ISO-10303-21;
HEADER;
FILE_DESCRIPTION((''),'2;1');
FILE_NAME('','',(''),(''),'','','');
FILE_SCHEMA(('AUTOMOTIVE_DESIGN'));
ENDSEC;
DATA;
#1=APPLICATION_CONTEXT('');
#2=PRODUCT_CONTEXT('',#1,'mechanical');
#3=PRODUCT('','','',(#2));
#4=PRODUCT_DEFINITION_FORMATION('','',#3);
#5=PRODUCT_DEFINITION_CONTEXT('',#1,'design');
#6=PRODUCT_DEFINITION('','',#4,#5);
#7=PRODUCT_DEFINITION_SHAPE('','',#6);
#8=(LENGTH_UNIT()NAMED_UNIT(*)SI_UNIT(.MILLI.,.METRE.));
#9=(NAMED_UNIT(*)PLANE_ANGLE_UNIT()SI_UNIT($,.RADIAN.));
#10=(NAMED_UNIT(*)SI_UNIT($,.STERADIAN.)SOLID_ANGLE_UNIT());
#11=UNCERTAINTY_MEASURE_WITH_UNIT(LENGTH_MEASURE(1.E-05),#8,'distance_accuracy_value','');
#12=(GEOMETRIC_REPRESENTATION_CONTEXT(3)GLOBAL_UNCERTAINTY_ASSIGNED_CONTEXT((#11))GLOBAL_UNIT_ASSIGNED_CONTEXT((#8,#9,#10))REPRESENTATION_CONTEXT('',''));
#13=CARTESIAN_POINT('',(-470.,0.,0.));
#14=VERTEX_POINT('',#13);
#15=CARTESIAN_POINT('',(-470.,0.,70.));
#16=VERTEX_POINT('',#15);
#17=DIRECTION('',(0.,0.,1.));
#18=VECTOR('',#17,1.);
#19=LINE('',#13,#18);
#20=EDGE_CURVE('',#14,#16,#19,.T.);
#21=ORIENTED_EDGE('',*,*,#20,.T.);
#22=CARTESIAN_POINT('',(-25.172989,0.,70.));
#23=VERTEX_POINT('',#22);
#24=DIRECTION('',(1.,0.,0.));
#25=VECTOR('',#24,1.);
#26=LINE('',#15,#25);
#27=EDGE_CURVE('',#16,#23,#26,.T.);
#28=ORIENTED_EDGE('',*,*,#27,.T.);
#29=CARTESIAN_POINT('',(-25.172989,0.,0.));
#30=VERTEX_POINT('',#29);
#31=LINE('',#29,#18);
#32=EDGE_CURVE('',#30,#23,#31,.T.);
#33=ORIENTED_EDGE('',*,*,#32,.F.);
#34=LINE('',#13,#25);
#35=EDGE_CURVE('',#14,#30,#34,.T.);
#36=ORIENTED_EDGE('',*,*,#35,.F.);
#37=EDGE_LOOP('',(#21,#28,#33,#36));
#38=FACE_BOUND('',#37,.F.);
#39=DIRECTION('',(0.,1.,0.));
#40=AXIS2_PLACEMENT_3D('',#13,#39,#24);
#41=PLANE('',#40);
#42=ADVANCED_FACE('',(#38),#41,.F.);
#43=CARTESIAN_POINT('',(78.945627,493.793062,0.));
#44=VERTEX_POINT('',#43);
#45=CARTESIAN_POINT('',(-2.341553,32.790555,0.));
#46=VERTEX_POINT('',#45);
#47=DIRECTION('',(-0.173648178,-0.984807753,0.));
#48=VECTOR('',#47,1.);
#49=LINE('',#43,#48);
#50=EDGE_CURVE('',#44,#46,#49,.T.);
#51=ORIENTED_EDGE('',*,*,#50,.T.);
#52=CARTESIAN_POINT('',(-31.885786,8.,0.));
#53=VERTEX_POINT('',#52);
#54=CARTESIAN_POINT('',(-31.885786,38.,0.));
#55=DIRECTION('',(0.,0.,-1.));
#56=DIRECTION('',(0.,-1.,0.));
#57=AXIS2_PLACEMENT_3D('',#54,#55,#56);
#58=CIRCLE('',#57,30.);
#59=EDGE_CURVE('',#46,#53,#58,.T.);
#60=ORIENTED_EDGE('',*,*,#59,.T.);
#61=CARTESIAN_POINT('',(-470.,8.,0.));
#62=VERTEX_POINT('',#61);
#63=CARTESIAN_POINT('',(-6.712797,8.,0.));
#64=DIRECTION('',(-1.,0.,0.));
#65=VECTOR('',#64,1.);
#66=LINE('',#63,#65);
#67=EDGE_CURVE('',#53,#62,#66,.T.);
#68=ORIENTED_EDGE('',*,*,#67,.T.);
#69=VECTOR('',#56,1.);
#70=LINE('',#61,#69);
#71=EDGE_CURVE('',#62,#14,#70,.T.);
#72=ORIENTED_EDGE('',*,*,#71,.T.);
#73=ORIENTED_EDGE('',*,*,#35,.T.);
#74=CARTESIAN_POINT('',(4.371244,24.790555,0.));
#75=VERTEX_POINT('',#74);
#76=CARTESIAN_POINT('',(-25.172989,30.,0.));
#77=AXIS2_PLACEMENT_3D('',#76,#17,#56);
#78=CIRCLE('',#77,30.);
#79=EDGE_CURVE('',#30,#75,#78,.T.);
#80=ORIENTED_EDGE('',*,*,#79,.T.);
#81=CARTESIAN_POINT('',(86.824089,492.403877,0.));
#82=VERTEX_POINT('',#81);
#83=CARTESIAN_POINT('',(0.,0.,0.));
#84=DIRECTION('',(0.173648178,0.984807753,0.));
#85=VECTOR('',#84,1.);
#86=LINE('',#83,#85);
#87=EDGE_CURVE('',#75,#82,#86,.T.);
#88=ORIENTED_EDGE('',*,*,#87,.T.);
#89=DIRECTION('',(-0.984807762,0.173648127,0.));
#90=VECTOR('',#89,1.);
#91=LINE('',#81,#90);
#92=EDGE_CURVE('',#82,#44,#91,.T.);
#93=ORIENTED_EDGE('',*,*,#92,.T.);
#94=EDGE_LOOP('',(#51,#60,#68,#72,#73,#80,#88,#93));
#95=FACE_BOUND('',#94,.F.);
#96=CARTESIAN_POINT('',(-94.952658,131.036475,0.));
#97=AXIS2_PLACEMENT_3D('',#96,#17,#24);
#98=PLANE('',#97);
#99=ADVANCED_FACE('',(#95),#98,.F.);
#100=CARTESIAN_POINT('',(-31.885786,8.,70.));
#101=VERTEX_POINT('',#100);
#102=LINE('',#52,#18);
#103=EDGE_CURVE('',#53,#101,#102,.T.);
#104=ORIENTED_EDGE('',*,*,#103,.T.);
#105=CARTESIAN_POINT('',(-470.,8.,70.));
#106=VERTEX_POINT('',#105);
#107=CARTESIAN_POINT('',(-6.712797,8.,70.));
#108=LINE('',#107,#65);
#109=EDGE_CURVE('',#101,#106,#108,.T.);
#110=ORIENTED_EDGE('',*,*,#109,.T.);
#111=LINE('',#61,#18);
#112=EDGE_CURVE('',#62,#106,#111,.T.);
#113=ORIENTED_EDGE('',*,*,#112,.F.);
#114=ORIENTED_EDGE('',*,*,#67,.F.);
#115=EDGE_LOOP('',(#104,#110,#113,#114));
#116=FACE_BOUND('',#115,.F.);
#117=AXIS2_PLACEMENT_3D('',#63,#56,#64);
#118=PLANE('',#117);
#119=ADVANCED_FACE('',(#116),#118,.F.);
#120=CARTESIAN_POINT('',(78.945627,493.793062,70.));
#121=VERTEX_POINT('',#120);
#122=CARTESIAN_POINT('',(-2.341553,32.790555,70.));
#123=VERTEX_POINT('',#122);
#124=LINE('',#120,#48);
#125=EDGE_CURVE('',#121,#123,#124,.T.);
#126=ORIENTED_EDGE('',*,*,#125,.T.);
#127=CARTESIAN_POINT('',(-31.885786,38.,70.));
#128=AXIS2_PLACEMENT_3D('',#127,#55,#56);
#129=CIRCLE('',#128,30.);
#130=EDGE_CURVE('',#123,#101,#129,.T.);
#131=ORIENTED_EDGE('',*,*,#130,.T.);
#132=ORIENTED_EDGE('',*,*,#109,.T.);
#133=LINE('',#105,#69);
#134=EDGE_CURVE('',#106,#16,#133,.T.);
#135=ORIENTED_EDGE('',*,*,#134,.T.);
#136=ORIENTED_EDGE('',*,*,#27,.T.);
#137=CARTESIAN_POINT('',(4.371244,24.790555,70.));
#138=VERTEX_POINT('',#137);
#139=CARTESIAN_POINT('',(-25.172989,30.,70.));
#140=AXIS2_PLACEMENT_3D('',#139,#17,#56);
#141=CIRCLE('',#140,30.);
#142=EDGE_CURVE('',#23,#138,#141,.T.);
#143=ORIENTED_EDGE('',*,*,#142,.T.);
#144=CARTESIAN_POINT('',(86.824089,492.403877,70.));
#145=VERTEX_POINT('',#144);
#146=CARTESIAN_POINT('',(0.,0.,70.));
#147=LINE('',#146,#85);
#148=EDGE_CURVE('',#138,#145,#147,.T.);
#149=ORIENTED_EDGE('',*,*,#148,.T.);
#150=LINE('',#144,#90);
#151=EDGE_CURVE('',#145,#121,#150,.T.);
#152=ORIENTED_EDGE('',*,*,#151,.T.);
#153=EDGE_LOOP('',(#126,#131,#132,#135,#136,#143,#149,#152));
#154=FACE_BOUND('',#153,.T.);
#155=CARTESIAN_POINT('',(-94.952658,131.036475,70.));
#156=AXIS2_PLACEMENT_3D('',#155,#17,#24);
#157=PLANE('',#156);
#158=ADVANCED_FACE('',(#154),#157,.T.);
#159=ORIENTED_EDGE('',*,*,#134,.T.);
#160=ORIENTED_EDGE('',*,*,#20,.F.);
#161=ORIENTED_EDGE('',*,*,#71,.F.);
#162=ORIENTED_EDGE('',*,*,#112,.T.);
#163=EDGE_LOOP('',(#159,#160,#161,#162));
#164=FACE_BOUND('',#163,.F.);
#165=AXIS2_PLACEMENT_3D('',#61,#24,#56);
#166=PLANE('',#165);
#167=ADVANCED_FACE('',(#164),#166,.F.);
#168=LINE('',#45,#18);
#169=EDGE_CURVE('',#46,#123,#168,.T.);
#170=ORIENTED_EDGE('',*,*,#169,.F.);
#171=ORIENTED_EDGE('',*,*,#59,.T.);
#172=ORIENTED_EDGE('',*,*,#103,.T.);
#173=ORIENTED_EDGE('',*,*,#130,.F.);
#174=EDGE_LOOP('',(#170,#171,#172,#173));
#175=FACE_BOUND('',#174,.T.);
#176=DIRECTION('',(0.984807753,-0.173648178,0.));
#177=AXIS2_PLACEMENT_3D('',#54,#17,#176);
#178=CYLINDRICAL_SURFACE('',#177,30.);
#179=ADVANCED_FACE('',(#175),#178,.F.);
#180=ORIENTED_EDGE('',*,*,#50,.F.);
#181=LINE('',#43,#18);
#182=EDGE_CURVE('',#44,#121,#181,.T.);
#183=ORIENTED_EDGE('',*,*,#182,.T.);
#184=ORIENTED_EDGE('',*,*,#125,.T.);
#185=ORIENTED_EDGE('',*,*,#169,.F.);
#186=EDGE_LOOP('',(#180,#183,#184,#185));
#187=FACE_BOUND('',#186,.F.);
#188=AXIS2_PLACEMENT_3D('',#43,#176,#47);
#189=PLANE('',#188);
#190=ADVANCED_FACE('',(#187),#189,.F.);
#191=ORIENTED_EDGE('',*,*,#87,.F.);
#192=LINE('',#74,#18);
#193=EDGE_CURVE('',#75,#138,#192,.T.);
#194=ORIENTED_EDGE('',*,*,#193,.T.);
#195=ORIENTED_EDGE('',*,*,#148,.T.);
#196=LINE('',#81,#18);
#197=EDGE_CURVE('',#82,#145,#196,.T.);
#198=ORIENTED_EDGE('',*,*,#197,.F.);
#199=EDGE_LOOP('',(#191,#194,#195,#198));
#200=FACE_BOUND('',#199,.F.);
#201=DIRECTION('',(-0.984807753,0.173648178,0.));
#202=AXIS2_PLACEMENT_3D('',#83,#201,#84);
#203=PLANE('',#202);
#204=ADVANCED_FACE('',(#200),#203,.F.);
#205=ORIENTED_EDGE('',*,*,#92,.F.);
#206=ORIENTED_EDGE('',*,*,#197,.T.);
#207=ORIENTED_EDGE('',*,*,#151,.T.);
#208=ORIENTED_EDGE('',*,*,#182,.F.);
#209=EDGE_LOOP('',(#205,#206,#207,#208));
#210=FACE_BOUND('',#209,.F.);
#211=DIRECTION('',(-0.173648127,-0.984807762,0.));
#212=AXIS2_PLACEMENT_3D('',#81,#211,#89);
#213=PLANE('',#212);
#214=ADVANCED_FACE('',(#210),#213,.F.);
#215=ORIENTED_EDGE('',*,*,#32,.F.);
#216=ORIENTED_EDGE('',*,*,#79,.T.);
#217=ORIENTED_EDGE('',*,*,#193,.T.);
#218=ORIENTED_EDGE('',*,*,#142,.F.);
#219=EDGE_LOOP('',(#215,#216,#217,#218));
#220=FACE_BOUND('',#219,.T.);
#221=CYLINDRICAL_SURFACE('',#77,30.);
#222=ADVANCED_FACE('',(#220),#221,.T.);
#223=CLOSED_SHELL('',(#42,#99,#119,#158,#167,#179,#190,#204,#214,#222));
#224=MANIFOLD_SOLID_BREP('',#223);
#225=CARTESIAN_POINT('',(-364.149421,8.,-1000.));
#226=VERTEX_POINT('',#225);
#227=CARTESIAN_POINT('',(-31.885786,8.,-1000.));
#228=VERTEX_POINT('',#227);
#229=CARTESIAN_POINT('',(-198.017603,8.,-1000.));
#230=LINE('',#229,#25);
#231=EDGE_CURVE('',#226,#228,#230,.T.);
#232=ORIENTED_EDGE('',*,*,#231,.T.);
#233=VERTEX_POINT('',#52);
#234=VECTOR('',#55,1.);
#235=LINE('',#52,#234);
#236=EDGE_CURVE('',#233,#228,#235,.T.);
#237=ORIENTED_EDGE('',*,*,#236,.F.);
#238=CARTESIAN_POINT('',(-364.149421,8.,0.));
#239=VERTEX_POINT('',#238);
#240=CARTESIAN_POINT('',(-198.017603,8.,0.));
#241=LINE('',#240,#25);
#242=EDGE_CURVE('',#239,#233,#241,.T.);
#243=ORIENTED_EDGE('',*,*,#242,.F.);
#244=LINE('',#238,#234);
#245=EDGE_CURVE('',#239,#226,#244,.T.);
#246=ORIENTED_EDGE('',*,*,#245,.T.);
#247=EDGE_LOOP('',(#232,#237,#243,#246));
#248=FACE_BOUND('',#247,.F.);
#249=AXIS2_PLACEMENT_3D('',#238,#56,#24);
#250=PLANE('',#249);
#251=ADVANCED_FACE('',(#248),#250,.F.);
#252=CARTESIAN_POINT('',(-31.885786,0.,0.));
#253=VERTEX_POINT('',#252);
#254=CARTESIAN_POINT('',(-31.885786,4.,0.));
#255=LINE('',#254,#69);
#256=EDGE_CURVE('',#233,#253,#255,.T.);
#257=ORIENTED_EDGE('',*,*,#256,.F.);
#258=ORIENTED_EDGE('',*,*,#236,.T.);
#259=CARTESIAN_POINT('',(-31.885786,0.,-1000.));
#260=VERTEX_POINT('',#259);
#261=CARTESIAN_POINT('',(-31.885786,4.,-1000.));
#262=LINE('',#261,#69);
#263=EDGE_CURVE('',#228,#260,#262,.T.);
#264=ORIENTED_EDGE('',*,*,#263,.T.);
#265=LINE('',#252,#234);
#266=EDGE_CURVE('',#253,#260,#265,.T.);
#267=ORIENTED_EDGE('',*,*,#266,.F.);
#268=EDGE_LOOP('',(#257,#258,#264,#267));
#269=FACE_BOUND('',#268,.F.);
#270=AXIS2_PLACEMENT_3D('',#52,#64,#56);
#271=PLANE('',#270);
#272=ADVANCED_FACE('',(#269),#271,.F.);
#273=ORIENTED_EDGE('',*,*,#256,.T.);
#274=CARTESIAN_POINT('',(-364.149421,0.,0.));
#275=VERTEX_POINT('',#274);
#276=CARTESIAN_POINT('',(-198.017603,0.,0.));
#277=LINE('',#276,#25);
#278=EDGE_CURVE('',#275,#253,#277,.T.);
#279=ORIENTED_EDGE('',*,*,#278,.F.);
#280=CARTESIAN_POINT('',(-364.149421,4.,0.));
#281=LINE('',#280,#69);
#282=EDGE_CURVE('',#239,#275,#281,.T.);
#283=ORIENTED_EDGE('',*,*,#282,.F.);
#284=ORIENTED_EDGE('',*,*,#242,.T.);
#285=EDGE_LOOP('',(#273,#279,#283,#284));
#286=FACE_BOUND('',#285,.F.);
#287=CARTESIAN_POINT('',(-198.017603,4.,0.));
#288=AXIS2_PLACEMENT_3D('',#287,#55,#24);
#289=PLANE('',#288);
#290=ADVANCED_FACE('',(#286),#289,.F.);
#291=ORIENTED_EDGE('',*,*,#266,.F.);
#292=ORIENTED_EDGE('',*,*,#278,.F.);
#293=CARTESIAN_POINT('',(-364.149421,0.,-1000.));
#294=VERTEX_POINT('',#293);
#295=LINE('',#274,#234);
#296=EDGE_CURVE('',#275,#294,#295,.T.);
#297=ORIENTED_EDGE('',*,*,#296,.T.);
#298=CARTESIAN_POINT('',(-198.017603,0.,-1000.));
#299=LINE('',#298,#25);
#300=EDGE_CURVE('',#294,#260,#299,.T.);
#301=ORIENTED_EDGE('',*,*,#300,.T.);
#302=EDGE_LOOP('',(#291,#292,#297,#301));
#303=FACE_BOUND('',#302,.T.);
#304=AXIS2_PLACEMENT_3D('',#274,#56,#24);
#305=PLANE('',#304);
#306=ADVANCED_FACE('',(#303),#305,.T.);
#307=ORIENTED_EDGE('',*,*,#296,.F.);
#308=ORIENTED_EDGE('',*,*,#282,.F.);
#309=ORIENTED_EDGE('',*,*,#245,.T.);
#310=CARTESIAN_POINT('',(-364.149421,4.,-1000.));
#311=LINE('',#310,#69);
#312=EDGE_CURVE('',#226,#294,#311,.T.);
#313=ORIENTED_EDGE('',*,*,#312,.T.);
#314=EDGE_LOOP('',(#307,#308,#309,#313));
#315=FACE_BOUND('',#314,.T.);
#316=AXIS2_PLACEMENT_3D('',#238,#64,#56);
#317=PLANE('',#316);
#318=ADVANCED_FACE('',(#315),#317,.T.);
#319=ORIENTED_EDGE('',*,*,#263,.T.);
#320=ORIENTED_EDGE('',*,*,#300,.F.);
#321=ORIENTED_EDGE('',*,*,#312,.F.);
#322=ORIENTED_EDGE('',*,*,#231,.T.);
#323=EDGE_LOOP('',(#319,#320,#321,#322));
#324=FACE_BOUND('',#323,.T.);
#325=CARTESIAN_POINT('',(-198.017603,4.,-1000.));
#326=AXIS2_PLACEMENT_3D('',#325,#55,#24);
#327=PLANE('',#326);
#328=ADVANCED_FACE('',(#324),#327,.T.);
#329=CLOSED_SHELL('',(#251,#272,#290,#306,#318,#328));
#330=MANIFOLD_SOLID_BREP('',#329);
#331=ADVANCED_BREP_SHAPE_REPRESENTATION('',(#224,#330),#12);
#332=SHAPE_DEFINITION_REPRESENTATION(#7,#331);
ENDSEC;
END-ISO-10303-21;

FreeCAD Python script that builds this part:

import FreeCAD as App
import Part
import Sketcher

V = App.Vector
Q = App.Units.Quantity


def edges_at(feature, points):
    """Names of the edges that pass closest to the given points."""
    edges = feature.Shape.Edges
    near = lambda p: min(range(len(edges)), key=lambda i: edges[i].distToShape(Part.Vertex(*p))[0])
    return sorted({f"Edge{near(p) + 1}" for p in points})

doc = App.newDocument("Part")
params = doc.addObject("Spreadsheet::Sheet", "Params")
for row, (alias, value) in enumerate([
    ("sketch1_width", "470 mm"),
    ("sketch1_height", "8 mm"),
    ("sketch1_length", "500.000001 mm"),
    ("sketch1_length2", "8 mm"),
    ("pad1_length", "70 mm"),
    ("fillet_radius", "30 mm"),
    ("sketch2_height", "8 mm"),
    ("pad2_length", "1000 mm"),
], start=1):
    params.set(f"A{row}", alias)
    params.set(f"B{row}", "=" + value)
    params.setAlias(f"B{row}", alias)

body = doc.addObject("PartDesign::Body", "Body")

sketch1 = body.newObject("Sketcher::SketchObject", "Sketch")
sketch1.AttachmentSupport = (doc.getObject("XY_Plane"), [""])
sketch1.MapMode = "FlatFace"
sketch1.addGeometry([
    Part.LineSegment(V(-470, 0, 0), V(0, 0, 0)),
    Part.LineSegment(V(0, 0, 0), V(87, 492, 0)),
    Part.LineSegment(V(87, 492, 0), V(79, 494, 0)),
    Part.LineSegment(V(79, 494, 0), V(-7, 8, 0)),
    Part.LineSegment(V(-7, 8, 0), V(-470, 8, 0)),
    Part.LineSegment(V(-470, 8, 0), V(-470, 0, 0)),
], False)
sketch1.addConstraint([
    Sketcher.Constraint("Coincident", 0, 2, 1, 1),
    Sketcher.Constraint("Coincident", 1, 2, 2, 1),
    Sketcher.Constraint("Coincident", 2, 2, 3, 1),
    Sketcher.Constraint("Coincident", 3, 2, 4, 1),
    Sketcher.Constraint("Coincident", 4, 2, 5, 1),
    Sketcher.Constraint("Coincident", 5, 2, 0, 1),
    Sketcher.Constraint("Horizontal", 0),
    Sketcher.Constraint("Horizontal", 4),
    Sketcher.Constraint("Vertical", 5),
    Sketcher.Constraint("Coincident", 0, 2, -1, 1),
    Sketcher.Constraint("Perpendicular", 1, 2),
    Sketcher.Constraint("Perpendicular", 2, 3),
    Sketcher.Constraint("DistanceX", 0, 1, 0, 2, Q("470 mm")),
    Sketcher.Constraint("DistanceY", 5, 2, 5, 1, Q("8 mm")),
    Sketcher.Constraint("Angle", 1, Q("80 deg")),
    Sketcher.Constraint("Distance", 1, Q("500.000001 mm")),
    Sketcher.Constraint("Distance", 2, Q("8 mm")),
])
sketch1.setExpression("Constraints[12]", "Params.sketch1_width")
sketch1.setExpression("Constraints[13]", "Params.sketch1_height")
sketch1.setExpression("Constraints[15]", "Params.sketch1_length")
sketch1.setExpression("Constraints[16]", "Params.sketch1_length2")
pad1 = body.newObject("PartDesign::Pad", "Pad")
pad1.Profile = sketch1
pad1.setExpression("Length", "Params.pad1_length")
doc.recompute()

fillet = body.newObject("PartDesign::Fillet", "Fillet")
fillet.Base = (pad1, edges_at(pad1, [(-6.713, 8, 35), (0, 0, 35)]))
fillet.setExpression("Radius", "Params.fillet_radius")
body2 = doc.addObject("PartDesign::Body", "Body001")

sketch2 = body2.newObject("Sketcher::SketchObject", "Sketch001")
sketch2.AttachmentSupport = (doc.getObject("XY_Plane001"), [""])
sketch2.MapMode = "FlatFace"
sketch2.addGeometry([
    Part.LineSegment(V(-364, 0, 0), V(-364, 8, 0)),
    Part.LineSegment(V(-364, 8, 0), V(-32, 8, 0)),
    Part.LineSegment(V(-32, 8, 0), V(-32, 0, 0)),
    Part.LineSegment(V(-32, 0, 0), V(-364, 0, 0)),
], False)
sketch2.addConstraint([
    Sketcher.Constraint("Coincident", 0, 2, 1, 1),
    Sketcher.Constraint("Coincident", 1, 2, 2, 1),
    Sketcher.Constraint("Coincident", 2, 2, 3, 1),
    Sketcher.Constraint("Coincident", 3, 2, 0, 1),
    Sketcher.Constraint("Vertical", 0),
    Sketcher.Constraint("Horizontal", 1),
    Sketcher.Constraint("Vertical", 2),
    Sketcher.Constraint("Horizontal", 3),
    Sketcher.Constraint("PointOnObject", 2, 2, -1),
    Sketcher.Constraint("DistanceY", 0, 1, 0, 2, Q("8 mm")),
    Sketcher.Constraint("DistanceX", 1, 1, 1, 2, Q("332.263635 mm")),
    Sketcher.Constraint("DistanceX", 0, 2, -1, 1, Q("364.149421 mm")),
])
sketch2.setExpression("Constraints[9]", "Params.sketch2_height")
pad2 = body2.newObject("PartDesign::Pad", "Pad001")
pad2.Profile = sketch2
pad2.setExpression("Length", "Params.pad2_length")
pad2.Reversed = True

doc.recompute()
